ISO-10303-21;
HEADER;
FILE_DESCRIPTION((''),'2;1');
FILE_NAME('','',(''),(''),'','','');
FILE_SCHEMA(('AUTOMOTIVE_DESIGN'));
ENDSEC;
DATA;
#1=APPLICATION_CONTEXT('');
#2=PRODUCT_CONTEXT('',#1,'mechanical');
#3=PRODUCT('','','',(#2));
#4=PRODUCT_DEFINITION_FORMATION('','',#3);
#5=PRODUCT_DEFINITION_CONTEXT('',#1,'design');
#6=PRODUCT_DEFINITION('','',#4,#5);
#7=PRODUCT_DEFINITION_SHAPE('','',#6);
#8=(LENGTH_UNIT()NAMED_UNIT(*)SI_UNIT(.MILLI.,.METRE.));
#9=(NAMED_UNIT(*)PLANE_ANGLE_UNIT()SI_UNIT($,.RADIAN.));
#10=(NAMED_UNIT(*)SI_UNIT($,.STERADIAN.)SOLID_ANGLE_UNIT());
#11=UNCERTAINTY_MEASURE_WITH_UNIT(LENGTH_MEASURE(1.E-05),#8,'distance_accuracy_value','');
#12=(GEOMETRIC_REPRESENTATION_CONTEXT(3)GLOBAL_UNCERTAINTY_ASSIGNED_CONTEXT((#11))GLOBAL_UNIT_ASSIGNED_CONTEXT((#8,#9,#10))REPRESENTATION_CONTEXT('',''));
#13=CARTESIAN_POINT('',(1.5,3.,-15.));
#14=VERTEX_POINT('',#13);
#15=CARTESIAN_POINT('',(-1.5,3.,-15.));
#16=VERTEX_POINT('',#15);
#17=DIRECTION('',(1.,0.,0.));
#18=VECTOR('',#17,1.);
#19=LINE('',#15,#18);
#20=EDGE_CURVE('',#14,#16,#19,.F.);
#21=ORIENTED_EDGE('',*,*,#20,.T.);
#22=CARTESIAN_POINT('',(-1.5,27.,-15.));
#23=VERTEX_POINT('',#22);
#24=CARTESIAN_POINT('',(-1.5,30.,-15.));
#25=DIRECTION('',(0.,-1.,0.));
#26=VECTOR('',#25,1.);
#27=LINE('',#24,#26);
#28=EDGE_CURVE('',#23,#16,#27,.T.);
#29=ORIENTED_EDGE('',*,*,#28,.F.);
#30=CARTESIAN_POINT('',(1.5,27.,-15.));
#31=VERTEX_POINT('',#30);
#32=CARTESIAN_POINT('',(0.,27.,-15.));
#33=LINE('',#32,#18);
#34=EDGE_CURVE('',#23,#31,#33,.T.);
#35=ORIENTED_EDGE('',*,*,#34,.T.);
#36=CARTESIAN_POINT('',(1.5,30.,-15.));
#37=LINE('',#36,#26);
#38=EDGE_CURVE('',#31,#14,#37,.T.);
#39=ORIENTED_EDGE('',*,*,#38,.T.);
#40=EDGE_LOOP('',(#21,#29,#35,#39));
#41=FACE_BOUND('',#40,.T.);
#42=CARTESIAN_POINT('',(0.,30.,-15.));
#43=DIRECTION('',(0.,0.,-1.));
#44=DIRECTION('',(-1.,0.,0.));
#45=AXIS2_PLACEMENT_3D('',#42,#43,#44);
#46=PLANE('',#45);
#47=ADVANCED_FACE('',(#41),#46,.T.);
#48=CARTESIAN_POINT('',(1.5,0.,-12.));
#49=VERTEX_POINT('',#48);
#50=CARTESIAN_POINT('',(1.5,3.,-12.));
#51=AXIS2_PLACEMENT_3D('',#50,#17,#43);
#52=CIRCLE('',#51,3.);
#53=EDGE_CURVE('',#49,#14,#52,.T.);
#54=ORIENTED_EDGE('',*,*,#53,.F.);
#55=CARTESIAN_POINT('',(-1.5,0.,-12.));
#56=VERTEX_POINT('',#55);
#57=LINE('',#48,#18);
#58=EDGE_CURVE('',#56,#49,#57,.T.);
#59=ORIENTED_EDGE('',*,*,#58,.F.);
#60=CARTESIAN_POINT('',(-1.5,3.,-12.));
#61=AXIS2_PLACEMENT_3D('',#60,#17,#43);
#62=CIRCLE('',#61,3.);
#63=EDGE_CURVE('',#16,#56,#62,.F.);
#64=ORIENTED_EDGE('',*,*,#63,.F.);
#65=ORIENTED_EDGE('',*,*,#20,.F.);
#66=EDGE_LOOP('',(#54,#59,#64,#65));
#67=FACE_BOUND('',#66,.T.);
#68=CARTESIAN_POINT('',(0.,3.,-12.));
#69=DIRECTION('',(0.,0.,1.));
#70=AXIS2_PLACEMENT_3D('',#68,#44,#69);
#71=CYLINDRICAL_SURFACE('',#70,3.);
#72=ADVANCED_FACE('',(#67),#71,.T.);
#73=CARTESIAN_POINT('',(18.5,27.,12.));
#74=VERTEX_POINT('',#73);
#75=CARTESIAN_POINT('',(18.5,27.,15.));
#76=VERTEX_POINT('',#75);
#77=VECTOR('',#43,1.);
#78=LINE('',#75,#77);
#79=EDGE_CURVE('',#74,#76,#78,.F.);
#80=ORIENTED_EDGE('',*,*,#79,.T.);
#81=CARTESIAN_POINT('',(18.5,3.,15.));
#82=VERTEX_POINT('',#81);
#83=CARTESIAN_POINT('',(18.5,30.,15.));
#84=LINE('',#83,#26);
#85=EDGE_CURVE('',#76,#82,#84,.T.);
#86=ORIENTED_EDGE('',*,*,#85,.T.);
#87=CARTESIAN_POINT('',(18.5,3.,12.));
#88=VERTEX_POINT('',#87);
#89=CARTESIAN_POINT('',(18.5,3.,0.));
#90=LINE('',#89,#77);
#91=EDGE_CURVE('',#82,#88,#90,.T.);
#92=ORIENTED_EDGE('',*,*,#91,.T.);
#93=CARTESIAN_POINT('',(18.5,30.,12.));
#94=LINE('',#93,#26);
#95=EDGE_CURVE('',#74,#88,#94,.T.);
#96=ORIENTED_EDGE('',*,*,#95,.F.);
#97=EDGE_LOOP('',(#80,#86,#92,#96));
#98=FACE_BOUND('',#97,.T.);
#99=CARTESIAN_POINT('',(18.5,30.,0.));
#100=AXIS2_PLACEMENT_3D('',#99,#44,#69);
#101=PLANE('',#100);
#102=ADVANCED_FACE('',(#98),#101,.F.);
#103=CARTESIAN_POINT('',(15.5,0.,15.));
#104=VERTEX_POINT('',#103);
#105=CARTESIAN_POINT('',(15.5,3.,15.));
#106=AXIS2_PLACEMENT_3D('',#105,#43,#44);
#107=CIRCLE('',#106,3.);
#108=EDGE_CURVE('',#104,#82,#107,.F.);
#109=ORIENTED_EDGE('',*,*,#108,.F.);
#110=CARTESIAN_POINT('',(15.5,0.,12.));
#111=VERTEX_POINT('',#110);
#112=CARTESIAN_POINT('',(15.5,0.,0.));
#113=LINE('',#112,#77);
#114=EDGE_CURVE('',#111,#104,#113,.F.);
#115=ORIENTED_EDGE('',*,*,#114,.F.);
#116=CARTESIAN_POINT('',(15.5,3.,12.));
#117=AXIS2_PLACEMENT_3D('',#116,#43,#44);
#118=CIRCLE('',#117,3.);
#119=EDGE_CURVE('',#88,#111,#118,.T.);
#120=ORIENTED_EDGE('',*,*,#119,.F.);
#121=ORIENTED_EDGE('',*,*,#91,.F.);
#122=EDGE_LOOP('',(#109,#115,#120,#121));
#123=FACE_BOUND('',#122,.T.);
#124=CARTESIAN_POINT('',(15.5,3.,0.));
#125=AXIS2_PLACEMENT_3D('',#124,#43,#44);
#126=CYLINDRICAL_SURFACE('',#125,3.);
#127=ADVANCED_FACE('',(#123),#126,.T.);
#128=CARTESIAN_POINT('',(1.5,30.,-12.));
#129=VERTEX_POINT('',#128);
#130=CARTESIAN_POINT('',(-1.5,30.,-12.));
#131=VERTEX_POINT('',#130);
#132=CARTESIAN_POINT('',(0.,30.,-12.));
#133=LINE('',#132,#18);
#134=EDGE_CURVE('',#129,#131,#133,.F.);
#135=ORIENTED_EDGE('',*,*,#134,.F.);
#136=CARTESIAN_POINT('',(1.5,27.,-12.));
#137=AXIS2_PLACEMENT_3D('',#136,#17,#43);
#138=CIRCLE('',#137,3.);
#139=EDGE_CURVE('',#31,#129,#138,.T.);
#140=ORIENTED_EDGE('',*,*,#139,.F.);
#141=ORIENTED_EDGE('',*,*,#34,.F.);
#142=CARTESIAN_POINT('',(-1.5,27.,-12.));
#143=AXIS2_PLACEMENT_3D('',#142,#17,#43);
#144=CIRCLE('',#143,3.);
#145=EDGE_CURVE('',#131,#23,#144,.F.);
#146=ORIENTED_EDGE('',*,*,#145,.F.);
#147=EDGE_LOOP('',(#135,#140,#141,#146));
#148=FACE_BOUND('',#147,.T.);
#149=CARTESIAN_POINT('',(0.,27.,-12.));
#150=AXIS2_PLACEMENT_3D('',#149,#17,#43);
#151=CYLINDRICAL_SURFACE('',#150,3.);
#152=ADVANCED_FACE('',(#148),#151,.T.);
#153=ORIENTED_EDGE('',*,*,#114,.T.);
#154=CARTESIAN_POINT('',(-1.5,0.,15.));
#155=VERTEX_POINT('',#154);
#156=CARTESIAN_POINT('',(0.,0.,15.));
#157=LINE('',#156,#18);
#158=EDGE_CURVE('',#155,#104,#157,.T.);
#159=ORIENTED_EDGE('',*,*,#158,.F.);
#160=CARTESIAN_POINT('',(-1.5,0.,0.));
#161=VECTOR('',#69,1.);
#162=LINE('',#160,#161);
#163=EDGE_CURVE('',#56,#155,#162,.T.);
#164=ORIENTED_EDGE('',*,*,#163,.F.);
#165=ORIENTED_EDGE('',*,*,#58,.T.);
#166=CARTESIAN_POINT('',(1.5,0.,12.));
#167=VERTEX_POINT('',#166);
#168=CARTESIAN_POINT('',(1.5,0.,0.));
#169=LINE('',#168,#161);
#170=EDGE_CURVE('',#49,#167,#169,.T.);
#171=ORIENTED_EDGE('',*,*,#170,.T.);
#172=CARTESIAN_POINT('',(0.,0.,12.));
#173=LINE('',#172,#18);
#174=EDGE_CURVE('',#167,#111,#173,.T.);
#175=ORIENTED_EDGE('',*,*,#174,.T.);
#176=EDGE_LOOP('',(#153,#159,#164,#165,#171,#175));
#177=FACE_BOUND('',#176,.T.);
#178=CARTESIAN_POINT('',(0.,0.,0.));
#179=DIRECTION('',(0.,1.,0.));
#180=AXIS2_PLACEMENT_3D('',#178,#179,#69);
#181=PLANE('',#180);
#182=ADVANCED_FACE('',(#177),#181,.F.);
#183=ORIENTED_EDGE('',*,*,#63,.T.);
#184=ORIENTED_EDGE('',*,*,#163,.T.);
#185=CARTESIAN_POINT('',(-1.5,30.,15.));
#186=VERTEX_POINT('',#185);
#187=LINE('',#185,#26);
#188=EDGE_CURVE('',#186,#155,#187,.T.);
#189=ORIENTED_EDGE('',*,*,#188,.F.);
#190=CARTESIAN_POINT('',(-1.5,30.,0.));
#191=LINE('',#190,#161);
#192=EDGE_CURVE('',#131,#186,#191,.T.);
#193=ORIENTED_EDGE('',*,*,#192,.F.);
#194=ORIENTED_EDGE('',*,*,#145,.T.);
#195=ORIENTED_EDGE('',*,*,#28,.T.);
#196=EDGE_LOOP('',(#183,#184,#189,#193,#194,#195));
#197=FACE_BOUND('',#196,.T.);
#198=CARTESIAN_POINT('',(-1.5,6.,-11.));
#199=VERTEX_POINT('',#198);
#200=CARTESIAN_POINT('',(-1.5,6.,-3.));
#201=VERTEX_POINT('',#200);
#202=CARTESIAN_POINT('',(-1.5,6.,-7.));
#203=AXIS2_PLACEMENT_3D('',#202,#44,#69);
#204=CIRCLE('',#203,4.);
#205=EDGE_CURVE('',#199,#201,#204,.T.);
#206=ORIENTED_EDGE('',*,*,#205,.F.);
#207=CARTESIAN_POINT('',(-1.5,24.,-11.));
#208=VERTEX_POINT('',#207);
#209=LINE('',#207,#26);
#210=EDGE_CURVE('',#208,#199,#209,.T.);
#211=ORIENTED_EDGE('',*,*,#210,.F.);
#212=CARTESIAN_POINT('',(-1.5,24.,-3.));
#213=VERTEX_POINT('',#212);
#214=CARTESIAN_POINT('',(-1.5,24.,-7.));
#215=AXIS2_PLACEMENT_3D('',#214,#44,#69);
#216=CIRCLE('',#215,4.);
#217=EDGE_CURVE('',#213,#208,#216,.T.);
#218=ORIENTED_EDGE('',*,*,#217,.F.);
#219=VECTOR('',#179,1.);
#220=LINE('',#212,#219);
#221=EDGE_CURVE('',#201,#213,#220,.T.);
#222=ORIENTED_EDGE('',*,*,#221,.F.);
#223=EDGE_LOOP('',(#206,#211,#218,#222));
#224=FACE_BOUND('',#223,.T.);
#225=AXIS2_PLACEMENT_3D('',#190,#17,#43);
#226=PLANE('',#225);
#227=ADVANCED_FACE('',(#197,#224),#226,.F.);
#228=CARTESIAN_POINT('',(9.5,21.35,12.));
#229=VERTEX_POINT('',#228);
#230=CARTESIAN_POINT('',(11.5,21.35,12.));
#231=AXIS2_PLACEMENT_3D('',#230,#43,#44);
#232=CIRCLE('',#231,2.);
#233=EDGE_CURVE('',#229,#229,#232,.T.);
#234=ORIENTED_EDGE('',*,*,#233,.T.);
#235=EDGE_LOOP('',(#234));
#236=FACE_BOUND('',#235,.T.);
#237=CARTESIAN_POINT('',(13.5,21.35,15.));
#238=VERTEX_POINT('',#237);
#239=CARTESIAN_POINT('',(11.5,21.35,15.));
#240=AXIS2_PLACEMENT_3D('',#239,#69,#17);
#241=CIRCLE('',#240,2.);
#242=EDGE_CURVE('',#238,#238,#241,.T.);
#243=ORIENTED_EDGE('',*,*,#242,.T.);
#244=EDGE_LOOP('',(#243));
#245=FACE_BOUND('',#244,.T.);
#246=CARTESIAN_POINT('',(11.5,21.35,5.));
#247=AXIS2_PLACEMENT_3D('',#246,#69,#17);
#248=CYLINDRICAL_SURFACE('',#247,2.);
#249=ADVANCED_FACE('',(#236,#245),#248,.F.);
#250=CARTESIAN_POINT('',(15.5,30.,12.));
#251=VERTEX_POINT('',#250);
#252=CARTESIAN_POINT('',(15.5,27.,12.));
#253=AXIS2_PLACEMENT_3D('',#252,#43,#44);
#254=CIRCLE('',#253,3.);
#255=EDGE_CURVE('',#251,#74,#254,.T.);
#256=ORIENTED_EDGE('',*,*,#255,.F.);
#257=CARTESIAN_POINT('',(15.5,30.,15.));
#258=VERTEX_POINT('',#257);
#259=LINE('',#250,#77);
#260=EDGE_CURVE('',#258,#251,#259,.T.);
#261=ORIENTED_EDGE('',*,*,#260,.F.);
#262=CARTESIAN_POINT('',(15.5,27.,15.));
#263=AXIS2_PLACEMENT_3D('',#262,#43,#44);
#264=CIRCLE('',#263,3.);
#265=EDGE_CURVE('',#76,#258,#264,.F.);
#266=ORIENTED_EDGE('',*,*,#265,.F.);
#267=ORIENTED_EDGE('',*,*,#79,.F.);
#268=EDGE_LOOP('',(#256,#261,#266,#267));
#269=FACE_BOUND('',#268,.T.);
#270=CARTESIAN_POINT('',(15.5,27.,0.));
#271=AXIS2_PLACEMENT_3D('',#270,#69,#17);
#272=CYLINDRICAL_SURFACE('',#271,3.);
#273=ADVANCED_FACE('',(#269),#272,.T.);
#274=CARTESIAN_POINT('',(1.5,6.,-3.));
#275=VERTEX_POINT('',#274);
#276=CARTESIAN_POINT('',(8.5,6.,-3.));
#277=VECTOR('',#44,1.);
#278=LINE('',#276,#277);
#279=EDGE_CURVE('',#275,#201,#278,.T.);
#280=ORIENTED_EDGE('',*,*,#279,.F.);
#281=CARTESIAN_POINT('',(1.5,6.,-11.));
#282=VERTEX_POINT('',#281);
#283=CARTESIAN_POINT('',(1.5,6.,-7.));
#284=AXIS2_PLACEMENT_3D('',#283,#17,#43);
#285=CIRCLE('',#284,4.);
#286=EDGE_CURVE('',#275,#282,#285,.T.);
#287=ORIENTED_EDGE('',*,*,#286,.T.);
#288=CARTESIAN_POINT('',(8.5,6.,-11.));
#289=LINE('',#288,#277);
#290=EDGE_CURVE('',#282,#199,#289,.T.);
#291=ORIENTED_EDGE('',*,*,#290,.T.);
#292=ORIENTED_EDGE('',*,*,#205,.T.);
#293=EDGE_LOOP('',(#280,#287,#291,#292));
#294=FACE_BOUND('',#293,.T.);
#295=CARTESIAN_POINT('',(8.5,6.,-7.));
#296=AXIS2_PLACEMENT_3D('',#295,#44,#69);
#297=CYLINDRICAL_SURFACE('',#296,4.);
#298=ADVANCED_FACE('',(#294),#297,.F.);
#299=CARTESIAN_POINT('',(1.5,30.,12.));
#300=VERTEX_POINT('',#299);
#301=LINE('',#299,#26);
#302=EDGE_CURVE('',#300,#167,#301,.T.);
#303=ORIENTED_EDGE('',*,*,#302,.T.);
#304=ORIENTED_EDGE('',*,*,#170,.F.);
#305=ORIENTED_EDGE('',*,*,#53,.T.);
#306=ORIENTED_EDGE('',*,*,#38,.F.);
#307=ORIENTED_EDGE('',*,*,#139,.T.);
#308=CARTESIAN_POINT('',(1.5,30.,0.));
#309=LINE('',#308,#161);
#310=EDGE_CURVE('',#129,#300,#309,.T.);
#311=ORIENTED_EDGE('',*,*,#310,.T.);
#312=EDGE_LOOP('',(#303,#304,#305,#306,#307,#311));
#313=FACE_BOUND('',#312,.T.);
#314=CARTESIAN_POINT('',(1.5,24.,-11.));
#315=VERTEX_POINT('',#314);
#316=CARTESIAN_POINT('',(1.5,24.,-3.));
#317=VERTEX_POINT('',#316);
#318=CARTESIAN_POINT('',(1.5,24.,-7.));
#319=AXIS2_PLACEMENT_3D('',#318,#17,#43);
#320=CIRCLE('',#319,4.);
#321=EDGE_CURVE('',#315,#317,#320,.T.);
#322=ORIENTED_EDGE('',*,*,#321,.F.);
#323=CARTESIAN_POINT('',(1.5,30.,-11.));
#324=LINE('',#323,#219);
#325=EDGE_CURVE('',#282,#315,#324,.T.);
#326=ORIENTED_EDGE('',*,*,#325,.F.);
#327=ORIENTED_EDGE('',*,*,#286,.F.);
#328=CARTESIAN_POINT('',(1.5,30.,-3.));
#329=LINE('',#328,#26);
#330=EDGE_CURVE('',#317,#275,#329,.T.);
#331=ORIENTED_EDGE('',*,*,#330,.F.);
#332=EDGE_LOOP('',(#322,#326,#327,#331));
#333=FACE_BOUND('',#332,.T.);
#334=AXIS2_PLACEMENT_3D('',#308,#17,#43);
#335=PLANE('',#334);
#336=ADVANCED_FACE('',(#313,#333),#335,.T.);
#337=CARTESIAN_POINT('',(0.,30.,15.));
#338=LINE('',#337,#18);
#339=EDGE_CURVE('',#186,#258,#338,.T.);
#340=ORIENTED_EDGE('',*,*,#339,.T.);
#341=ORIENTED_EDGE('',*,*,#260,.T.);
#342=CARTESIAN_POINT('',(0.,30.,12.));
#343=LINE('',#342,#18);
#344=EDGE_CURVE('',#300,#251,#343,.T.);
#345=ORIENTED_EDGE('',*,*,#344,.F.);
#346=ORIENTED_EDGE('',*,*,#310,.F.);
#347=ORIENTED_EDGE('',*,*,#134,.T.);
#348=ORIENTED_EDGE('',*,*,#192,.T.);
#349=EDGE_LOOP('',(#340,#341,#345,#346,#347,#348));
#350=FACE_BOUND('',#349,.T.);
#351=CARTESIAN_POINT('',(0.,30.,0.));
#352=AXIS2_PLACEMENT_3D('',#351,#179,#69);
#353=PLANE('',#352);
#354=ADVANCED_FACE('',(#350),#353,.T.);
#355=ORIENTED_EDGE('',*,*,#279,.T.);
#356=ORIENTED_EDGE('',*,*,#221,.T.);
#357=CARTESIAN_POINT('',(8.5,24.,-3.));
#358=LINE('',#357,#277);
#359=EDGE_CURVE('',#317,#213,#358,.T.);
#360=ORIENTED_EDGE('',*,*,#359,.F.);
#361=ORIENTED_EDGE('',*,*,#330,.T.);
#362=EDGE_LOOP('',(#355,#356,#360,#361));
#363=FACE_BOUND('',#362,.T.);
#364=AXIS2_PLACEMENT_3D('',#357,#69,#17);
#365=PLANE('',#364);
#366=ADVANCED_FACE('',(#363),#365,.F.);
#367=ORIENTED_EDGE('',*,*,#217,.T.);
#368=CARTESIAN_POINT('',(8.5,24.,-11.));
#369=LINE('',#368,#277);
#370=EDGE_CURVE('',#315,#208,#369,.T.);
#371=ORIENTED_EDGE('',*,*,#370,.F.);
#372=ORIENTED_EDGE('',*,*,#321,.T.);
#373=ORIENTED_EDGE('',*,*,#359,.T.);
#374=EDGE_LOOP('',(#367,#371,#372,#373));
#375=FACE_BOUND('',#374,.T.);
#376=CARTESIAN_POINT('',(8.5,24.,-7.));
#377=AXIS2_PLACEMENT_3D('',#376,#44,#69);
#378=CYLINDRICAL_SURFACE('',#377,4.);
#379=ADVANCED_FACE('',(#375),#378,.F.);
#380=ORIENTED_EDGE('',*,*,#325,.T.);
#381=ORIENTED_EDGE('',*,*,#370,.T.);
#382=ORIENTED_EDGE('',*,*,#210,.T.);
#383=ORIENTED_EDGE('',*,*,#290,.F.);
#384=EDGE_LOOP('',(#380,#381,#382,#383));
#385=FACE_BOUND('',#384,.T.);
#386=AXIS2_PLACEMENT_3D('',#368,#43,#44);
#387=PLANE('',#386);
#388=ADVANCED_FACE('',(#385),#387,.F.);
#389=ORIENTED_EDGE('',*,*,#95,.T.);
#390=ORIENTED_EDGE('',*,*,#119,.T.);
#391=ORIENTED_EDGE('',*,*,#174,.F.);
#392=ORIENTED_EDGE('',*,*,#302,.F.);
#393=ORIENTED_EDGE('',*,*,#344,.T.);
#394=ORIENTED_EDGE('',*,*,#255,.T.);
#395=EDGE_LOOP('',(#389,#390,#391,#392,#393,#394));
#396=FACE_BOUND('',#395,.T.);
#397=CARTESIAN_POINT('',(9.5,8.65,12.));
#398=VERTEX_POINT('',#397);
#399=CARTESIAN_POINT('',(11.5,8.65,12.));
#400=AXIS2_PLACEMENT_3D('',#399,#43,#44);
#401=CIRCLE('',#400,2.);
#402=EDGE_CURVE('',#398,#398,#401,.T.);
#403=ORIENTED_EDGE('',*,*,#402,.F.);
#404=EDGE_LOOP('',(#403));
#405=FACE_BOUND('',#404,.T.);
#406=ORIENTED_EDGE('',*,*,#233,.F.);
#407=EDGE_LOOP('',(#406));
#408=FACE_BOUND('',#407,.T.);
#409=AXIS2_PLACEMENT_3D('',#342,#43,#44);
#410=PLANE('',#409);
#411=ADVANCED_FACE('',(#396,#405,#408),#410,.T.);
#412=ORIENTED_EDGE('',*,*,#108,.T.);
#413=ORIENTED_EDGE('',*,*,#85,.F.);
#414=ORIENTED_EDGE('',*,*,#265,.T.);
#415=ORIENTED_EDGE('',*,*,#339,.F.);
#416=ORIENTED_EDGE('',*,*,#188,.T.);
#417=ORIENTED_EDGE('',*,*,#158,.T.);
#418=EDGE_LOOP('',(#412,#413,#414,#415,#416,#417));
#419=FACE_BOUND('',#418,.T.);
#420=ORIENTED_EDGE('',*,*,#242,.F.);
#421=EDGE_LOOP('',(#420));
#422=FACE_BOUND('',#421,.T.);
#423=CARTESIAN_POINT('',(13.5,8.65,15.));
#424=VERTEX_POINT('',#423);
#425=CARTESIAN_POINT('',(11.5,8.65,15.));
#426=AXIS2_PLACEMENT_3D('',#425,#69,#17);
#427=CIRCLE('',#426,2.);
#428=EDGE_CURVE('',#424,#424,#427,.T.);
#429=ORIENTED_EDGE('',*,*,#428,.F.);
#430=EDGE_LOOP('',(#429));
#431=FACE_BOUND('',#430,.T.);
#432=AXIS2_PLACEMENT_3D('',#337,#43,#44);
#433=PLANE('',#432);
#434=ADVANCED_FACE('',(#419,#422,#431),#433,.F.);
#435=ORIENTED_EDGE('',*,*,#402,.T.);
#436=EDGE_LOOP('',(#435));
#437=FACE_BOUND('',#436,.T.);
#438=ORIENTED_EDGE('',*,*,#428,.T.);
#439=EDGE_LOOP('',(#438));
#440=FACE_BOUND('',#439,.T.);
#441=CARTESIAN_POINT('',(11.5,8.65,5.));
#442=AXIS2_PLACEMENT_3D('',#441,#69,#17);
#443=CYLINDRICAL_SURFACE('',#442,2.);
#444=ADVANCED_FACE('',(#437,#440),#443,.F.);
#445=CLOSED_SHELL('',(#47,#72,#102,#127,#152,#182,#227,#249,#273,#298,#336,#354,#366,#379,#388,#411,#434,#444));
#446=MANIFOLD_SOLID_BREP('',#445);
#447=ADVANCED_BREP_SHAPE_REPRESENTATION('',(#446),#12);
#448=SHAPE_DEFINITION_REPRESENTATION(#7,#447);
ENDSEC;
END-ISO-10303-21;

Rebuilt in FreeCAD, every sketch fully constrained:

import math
import FreeCAD as App
import Part
import Sketcher
Q = App.Units.Quantity


def edges_at(feature, points):
    """Names of the edges that pass closest to the given points."""
    edges = feature.Shape.Edges
    near = lambda p: min(range(len(edges)), key=lambda i: edges[i].distToShape(Part.Vertex(*p))[0])
    return sorted({f"Edge{near(p) + 1}" for p in points})

doc = App.newDocument("Part")
body = doc.addObject("PartDesign::Body", "Body")

# Sketch on XZ plane
sketch1 = body.newObject("Sketcher::SketchObject", "Sketch")
sketch1.AttachmentSupport = (doc.getObject("XZ_Plane"), [""])
sketch1.MapMode = "FlatFace"
sketch1.addGeometry([
    Part.LineSegment(App.Vector(-1.5, -15, 0), App.Vector(-1.5, 15, 0)),  # 0
    Part.LineSegment(App.Vector(-1.5, 15, 0), App.Vector(18.5, 15, 0)),  # 1
    Part.LineSegment(App.Vector(18.5, 15, 0), App.Vector(18.5, 12, 0)),  # 2
    Part.LineSegment(App.Vector(18.5, 12, 0), App.Vector(1.5, 12, 0)),  # 3
    Part.LineSegment(App.Vector(1.5, 12, 0), App.Vector(1.5, -15, 0)),  # 4
    Part.LineSegment(App.Vector(1.5, -15, 0), App.Vector(-1.5, -15, 0)),  # 5
], False)
sketch1.addConstraint([
    Sketcher.Constraint("Coincident", 0, 2, 1, 1),
    Sketcher.Constraint("Coincident", 1, 2, 2, 1),
    Sketcher.Constraint("Coincident", 2, 2, 3, 1),
    Sketcher.Constraint("Coincident", 3, 2, 4, 1),
    Sketcher.Constraint("Coincident", 4, 2, 5, 1),
    Sketcher.Constraint("Coincident", 5, 2, 0, 1),
    Sketcher.Constraint("Vertical", 0),
    Sketcher.Constraint("Horizontal", 1),
    Sketcher.Constraint("Vertical", 2),
    Sketcher.Constraint("Horizontal", 3),
    Sketcher.Constraint("Vertical", 4),
    Sketcher.Constraint("Horizontal", 5),
    Sketcher.Constraint("Symmetric", 0, 2, 4, 2, -1, 1),
    Sketcher.Constraint("Equal", 5, 2),
    Sketcher.Constraint("DistanceX", 1, 1, 1, 2, Q("20 mm")),
    Sketcher.Constraint("DistanceX", 3, 2, 3, 1, Q("17 mm")),
    Sketcher.Constraint("DistanceY", 0, 1, 0, 2, Q("30 mm")),
])
pad1 = body.newObject("PartDesign::Pad", "Pad")
pad1.Profile = sketch1
pad1.Length = 30
pad1.Reversed = True

# Sketch on XY plane
sketch2 = body.newObject("Sketcher::SketchObject", "Sketch001")
sketch2.AttachmentSupport = (doc.getObject("XY_Plane"), [""])
sketch2.MapMode = "FlatFace"
sketch2.AttachmentOffset = App.Placement(App.Vector(0, 0, 15), App.Rotation())
sketch2.addGeometry([
    Part.Circle(App.Vector(11.5, 21.4, 0), App.Vector(0, 0, 1), 2),
    Part.Circle(App.Vector(11.5, 8.7, 0), App.Vector(0, 0, 1), 2),
    Part.Circle(App.Vector(11.5, -4, 0), App.Vector(0, 0, 1), 2),
], False)
sketch2.addConstraint([
    Sketcher.Constraint("Equal", 0, 1),
    Sketcher.Constraint("Equal", 1, 2),
    Sketcher.Constraint("Vertical", 0, 3, 1, 3),
    Sketcher.Constraint("Vertical", 1, 3, 2, 3),
    Sketcher.Constraint("Diameter", 0, Q("4 mm")),
    Sketcher.Constraint("DistanceX", -1, 1, 0, 3, Q("11.5 mm")),
    Sketcher.Constraint("DistanceY", 1, 3, 0, 3, Q("12.7 mm")),
    Sketcher.Constraint("DistanceY", 2, 3, 1, 3, Q("12.7 mm")),
    Sketcher.Constraint("DistanceY", -1, 1, 0, 3, Q("21.35 mm")),
])
pocket1 = body.newObject("PartDesign::Pocket", "Pocket")
pocket1.Profile = sketch2
pocket1.Length = 10

# Sketch on YZ plane
sketch3 = body.newObject("Sketcher::SketchObject", "Sketch002")
sketch3.AttachmentSupport = (doc.getObject("YZ_Plane"), [""])
sketch3.MapMode = "FlatFace"
sketch3.AttachmentOffset = App.Placement(App.Vector(0, 0, -1.5), App.Rotation())
sketch3.addGeometry([
    Part.LineSegment(App.Vector(6, -3, 0), App.Vector(24, -3, 0)),
    Part.ArcOfCircle(Part.Circle(App.Vector(24, -7, 0), App.Vector(0, 0, 1), 4), math.radians(-90), math.radians(90)),
    Part.LineSegment(App.Vector(24, -11, 0), App.Vector(6, -11, 0)),
    Part.ArcOfCircle(Part.Circle(App.Vector(6, -7, 0), App.Vector(0, 0, 1), 4), math.radians(90), math.radians(270)),
], False)
sketch3.addConstraint([
    Sketcher.Constraint("Tangent", 0, 2, 1, 2),
    Sketcher.Constraint("Tangent", 1, 1, 2, 1),
    Sketcher.Constraint("Tangent", 2, 2, 3, 2),
    Sketcher.Constraint("Tangent", 3, 1, 0, 1),
    Sketcher.Constraint("Horizontal", 0),
    Sketcher.Constraint("Horizontal", 2),
    Sketcher.Constraint("Radius", 1, Q("4 mm")),
    Sketcher.Constraint("DistanceX", 0, 1, 0, 2, Q("18 mm")),
    Sketcher.Constraint("DistanceX", -1, 1, 1, 3, Q("24 mm")),
    Sketcher.Constraint("DistanceY", 1, 3, -1, 1, Q("7 mm")),
])
pocket2 = body.newObject("PartDesign::Pocket", "Pocket001")
pocket2.Profile = sketch3
pocket2.Length = 10
pocket2.Reversed = True
doc.recompute()

fillet = body.newObject("PartDesign::Fillet", "Fillet")
fillet.Base = (pocket2, edges_at(pocket2, [
    (18.5, 0, 13.5),
    (18.5, 30, 13.5),
    (0, 30, -15),
    (0, 0, -15),
]))
fillet.Radius = 3

doc.recompute()
